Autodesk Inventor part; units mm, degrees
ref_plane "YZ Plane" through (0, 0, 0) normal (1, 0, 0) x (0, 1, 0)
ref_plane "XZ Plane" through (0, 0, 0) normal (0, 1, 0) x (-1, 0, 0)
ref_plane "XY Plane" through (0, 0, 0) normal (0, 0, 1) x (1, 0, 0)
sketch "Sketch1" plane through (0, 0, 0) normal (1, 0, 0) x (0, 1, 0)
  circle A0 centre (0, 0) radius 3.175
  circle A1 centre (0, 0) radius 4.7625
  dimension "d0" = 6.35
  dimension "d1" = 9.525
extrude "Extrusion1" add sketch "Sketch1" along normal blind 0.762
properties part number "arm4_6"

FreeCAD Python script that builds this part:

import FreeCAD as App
import Part
import Sketcher

V = App.Vector
Q = App.Units.Quantity

doc = App.newDocument("Part")
params = doc.addObject("Spreadsheet::Sheet", "Params")
for row, (alias, value) in enumerate([
    ("sketch1_diameter", "0.25 in"),
    ("sketch1_diameter2", "0.375 in"),
    ("pad1_length", "0.03 in"),
], start=1):
    params.set(f"A{row}", alias)
    params.set(f"B{row}", "=" + value)
    params.setAlias(f"B{row}", alias)

body = doc.addObject("PartDesign::Body", "Body")

# Sketch on YZ plane
sketch1 = doc.addObject("Sketcher::SketchObject", "Sketch")
body.addObject(sketch1)
sketch1.AttachmentSupport = (doc.YZ_Plane, [""])
sketch1.MapMode = "FlatFace"
sketch1.addGeometry([
    Part.Circle(V(0, 0, 0), V(0, 0, 1), 4.7625),
    Part.Circle(V(0, 0, 0), V(0, 0, 1), 3.175),
], False)
sketch1.addConstraint([
    Sketcher.Constraint("Coincident", 0, 3, -1, 1),
    Sketcher.Constraint("Coincident", 1, 3, -1, 1),
    Sketcher.Constraint("Diameter", 1, Q("0.25 in")),
    Sketcher.Constraint("Diameter", 0, Q("0.375 in")),
])
sketch1.setExpression("Constraints[2]", "Params.sketch1_diameter")
sketch1.setExpression("Constraints[3]", "Params.sketch1_diameter2")
pad1 = doc.addObject("PartDesign::Pad", "Pad")
body.addObject(pad1)
pad1.Profile = sketch1
pad1.setExpression("Length", "Params.pad1_length")

doc.recompute()
